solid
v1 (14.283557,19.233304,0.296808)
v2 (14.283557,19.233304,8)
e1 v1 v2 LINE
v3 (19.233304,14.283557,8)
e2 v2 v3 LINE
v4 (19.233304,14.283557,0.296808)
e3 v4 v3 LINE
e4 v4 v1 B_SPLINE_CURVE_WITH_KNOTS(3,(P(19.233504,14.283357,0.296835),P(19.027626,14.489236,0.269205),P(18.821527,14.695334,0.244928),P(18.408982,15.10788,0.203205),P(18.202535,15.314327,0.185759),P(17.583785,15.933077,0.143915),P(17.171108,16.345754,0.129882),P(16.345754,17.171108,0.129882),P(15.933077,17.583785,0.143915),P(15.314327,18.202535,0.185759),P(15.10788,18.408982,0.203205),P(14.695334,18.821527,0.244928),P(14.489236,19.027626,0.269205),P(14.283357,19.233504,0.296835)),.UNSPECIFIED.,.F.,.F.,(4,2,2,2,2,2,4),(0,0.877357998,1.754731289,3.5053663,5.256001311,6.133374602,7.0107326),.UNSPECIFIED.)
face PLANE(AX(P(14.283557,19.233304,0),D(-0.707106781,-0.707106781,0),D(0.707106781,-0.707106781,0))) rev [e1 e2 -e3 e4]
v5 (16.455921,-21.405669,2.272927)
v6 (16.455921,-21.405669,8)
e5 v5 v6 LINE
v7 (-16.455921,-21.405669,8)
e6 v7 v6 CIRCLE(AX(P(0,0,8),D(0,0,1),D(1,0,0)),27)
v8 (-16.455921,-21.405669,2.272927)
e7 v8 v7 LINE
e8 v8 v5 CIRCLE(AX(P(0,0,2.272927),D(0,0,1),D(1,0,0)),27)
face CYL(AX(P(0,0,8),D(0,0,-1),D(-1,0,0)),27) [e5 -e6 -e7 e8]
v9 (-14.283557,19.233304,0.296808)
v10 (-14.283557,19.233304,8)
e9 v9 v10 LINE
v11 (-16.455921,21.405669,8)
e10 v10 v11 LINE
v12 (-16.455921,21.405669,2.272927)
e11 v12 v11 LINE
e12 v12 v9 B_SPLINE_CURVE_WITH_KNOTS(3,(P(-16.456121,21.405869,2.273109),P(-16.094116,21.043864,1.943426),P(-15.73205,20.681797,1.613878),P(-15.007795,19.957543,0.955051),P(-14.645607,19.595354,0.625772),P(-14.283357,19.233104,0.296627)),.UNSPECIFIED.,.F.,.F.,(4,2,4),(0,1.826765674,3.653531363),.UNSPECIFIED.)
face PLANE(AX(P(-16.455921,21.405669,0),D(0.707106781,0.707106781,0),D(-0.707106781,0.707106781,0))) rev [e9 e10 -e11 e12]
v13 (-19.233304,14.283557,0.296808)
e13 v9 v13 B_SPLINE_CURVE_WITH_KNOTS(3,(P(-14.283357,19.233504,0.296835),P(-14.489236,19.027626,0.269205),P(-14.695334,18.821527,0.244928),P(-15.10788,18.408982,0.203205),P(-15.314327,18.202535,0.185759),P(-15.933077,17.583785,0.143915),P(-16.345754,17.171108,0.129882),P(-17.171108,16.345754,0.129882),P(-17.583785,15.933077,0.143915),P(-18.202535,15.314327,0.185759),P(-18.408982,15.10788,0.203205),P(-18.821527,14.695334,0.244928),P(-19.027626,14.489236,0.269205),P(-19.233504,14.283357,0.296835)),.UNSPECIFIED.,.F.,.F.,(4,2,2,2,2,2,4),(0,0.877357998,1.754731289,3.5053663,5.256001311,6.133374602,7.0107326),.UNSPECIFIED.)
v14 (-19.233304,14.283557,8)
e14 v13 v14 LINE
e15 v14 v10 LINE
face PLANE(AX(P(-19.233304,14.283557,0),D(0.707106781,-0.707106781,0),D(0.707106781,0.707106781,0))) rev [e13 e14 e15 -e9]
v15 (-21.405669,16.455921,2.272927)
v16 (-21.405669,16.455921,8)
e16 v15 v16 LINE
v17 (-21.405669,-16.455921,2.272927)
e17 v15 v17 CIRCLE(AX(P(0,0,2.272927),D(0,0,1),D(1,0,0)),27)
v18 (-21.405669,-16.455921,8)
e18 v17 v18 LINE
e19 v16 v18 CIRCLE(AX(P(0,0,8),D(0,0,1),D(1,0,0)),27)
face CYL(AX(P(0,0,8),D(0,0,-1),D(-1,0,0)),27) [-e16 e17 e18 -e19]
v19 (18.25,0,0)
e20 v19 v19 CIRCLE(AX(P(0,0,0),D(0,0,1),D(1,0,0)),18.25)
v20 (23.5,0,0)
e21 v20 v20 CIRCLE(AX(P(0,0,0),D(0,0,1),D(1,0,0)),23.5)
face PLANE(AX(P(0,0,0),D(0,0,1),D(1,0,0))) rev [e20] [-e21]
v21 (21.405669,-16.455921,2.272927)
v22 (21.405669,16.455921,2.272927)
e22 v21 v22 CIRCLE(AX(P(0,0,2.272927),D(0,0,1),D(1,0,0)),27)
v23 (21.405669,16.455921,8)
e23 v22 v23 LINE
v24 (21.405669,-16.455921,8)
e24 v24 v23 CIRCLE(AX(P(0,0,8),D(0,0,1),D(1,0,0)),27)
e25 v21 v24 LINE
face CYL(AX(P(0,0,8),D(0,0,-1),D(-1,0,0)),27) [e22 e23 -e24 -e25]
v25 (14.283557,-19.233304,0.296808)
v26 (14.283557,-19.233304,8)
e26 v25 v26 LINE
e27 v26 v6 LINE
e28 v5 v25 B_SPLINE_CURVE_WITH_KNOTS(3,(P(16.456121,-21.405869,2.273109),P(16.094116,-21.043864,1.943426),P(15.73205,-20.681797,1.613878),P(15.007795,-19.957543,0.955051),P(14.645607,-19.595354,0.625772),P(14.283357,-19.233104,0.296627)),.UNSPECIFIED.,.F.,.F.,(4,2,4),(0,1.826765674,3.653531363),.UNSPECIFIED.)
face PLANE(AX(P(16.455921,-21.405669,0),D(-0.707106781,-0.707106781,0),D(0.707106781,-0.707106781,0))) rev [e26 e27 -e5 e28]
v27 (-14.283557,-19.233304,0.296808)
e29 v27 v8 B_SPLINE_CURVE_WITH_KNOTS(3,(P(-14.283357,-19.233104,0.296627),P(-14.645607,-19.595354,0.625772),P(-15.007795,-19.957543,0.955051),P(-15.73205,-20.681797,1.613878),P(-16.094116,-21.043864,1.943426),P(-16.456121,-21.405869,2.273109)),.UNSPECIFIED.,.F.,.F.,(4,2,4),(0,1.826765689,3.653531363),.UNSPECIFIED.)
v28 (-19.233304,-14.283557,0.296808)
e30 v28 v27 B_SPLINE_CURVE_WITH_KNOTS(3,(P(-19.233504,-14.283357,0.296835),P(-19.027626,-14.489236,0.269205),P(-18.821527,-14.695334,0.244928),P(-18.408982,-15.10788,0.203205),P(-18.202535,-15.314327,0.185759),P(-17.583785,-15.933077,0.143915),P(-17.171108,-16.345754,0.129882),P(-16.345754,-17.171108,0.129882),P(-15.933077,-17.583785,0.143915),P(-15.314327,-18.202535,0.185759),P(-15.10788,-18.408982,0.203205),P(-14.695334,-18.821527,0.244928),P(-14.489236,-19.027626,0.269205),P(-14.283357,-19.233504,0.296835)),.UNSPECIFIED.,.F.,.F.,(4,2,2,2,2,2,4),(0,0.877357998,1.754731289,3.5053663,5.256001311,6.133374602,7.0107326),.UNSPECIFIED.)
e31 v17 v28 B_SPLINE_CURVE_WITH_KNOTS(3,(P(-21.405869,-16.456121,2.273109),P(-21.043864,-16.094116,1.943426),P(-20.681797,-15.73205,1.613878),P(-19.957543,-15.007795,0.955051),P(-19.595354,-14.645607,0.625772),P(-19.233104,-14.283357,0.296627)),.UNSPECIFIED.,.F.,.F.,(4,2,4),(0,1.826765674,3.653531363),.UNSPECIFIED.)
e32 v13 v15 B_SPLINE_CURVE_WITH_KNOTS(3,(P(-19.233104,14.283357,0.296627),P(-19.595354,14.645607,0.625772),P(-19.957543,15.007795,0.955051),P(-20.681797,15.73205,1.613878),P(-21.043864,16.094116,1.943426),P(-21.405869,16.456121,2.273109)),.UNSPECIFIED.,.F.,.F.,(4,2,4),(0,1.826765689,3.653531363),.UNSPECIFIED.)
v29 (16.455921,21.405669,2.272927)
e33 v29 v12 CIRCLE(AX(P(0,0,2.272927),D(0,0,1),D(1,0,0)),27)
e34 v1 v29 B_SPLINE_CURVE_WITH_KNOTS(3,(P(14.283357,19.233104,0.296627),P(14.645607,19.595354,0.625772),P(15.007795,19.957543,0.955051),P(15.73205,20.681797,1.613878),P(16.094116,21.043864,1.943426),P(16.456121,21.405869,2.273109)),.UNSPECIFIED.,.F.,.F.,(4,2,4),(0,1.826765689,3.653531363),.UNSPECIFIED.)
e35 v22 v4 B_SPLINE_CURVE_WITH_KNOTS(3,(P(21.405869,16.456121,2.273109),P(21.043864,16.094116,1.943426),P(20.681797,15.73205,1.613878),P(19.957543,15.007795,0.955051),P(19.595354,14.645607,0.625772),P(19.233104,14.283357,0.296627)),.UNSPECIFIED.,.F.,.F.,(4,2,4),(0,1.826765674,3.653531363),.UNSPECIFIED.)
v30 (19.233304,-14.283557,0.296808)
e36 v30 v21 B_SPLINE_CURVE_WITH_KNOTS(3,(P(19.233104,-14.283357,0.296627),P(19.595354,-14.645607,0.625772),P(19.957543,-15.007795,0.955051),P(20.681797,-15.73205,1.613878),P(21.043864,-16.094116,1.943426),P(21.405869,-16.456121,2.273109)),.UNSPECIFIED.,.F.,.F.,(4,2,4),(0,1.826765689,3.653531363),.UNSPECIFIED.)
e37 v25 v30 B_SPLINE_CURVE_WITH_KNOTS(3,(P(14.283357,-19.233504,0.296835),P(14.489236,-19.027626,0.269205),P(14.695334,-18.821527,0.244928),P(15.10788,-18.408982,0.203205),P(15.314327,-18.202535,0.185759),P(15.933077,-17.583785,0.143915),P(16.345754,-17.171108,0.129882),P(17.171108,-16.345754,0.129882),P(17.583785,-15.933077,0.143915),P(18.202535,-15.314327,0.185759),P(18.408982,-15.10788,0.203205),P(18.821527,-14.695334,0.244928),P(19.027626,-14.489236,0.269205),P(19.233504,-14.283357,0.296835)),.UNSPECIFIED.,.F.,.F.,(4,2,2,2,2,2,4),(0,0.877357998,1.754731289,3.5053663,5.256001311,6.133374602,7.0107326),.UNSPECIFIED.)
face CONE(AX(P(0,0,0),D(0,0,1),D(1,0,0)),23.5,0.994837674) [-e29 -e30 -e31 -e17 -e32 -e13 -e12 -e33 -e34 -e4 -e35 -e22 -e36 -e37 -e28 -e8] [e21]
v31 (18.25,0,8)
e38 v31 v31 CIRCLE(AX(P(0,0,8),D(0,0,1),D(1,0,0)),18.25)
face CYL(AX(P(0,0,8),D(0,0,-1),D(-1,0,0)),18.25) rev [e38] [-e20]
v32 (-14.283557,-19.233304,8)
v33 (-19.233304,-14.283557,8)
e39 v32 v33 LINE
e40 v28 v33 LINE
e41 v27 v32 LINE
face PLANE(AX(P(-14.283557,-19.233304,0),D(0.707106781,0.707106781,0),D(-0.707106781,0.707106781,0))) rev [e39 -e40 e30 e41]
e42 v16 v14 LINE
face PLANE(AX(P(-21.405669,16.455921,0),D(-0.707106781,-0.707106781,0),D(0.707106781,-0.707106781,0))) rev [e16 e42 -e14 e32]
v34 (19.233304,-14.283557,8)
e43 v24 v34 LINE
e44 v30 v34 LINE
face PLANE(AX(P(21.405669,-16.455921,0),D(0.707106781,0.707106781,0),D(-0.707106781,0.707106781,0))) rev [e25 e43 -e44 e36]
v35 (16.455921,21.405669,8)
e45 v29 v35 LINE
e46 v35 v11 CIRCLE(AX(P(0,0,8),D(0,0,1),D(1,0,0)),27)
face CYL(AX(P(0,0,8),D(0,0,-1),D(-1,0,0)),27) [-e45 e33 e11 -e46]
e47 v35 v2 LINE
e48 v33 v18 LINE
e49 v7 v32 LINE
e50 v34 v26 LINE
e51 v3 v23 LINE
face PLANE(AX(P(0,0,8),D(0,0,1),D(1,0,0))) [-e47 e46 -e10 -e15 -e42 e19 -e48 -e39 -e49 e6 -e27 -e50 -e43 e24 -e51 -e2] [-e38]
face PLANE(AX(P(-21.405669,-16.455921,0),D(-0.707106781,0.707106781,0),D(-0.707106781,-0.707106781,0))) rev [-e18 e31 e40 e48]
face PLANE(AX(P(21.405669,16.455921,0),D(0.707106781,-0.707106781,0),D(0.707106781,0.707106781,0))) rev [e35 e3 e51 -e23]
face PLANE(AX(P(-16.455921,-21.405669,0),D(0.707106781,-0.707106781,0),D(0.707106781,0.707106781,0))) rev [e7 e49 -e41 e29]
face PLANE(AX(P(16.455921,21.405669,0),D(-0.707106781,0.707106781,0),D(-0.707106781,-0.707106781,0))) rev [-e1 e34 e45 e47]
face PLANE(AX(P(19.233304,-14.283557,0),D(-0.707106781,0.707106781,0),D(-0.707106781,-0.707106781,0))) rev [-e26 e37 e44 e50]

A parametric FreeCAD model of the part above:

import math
import FreeCAD as App
import Part
import Sketcher

V = App.Vector
Q = App.Units.Quantity


def add_polygon(sketch, points):
    """Adds a closed chain of lines whose ends are joined by coincident constraints."""
    first, n = sketch.GeometryCount, len(points)
    for a, b in zip(points, points[1:] + points[:1]):
        sketch.addGeometry(Part.LineSegment(App.Vector(*a, 0), App.Vector(*b, 0)), False)
    for i in range(n):
        sketch.addConstraint(Sketcher.Constraint("Coincident", first + i, 2, first + (i + 1) % n, 1))

doc = App.newDocument("Part")
body = doc.addObject("PartDesign::Body", "Body")

sketch1 = doc.addObject("Sketcher::SketchObject", "Sketch")
body.addObject(sketch1)
sketch1.AttachmentSupport = (doc.XY_Plane, [""])
sketch1.MapMode = "FlatFace"
sketch1.addGeometry(Part.Circle(V(0, 0, 0), V(0, 0, 1), 27), False)
sketch1.addGeometry(Part.Circle(V(0, 0, 0), V(0, 0, 1), 18), False)
sketch1.addConstraint(Sketcher.Constraint("Coincident", 0, 3, -1, 1))
sketch1.addConstraint(Sketcher.Constraint("Coincident", 1, 3, -1, 1))
sketch1.addConstraint(Sketcher.Constraint("Diameter", 0, Q("54 mm")))
sketch1.addConstraint(Sketcher.Constraint("Diameter", 1, Q("36.5 mm")))
pad1 = doc.addObject("PartDesign::Pad", "Pad")
body.addObject(pad1)
pad1.Profile = sketch1
pad1.Length = 8

sketch2 = doc.addObject("Sketcher::SketchObject", "Sketch001")
body.addObject(sketch2)
sketch2.AttachmentSupport = (doc.XY_Plane, [""])
sketch2.MapMode = "FlatFace"
sketch2.AttachmentOffset = App.Placement(V(0, 0, 8), App.Rotation())
sketch2.addGeometry(Part.LineSegment(V(16.5, 21.4, 0), V(14.3, 19.2, 0)), False)
sketch2.addGeometry(Part.LineSegment(V(14.3, 19.2, 0), V(19.2, 14.3, 0)), False)
sketch2.addGeometry(Part.LineSegment(V(19.2, 14.3, 0), V(21.4, 16.5, 0)), False)
sketch2.addGeometry(Part.ArcOfCircle(Part.Circle(V(0, 0, 0), V(0, 0, 1), 27), math.radians(37.55), math.radians(52.45)), False)
sketch2.addConstraint(Sketcher.Constraint("Coincident", 0, 2, 1, 1))
sketch2.addConstraint(Sketcher.Constraint("Coincident", 1, 2, 2, 1))
sketch2.addConstraint(Sketcher.Constraint("Coincident", 2, 2, 3, 1))
sketch2.addConstraint(Sketcher.Constraint("Coincident", 3, 2, 0, 1))
sketch2.addConstraint(Sketcher.Constraint("Coincident", 3, 3, -1, 1))
sketch2.addConstraint(Sketcher.Constraint("Perpendicular", 0, 1))
sketch2.addConstraint(Sketcher.Constraint("Perpendicular", 1, 2))
sketch2.addConstraint(Sketcher.Constraint("Equal", 0, 2))
sketch2.addConstraint(Sketcher.Constraint("Radius", 3, Q("27 mm")))
sketch2.addConstraint(Sketcher.Constraint("Angle", 0, Q("-135 deg")))
sketch2.addConstraint(Sketcher.Constraint("Distance", 1, Q("7 mm")))
sketch2.addConstraint(Sketcher.Constraint("DistanceX", 0, 2, 2, 2, Q("7.122112 mm")))
pocket1 = doc.addObject("PartDesign::Pocket", "Pocket")
body.addObject(pocket1)
pocket1.Profile = sketch2
pocket1.Type = "ThroughAll"
doc.recompute()

polarpattern = doc.addObject("PartDesign::PolarPattern", "PolarPattern")
body.addObject(polarpattern)
polarpattern.Originals = [pocket1]
polarpattern.Axis = (doc.Z_Axis, [""])
polarpattern.Angle = 360
polarpattern.Occurrences = 4
body.Tip = polarpattern

sketch3 = doc.addObject("Sketcher::SketchObject", "Sketch002")
body.addObject(sketch3)
sketch3.AttachmentSupport = (doc.XZ_Plane, [""])
sketch3.MapMode = "FlatFace"
add_polygon(sketch3, [(27, 0), (23.5, 0), (27, 2.3)])
sketch3.addConstraint(Sketcher.Constraint("Horizontal", 0))
sketch3.addConstraint(Sketcher.Constraint("Vertical", 2))
sketch3.addConstraint(Sketcher.Constraint("PointOnObject", 0, 2, -1))
sketch3.addConstraint(Sketcher.Constraint("Angle", 1, Q("33 deg")))
sketch3.addConstraint(Sketcher.Constraint("DistanceX", 0, 2, 0, 1, Q("3.5 mm")))
sketch3.addConstraint(Sketcher.Constraint("DistanceX", -1, 1, 1, 2, Q("27 mm")))
groove = doc.addObject("PartDesign::Groove", "Groove")
body.addObject(groove)
groove.Profile = sketch3
groove.ReferenceAxis = (sketch3, ["V_Axis"])
groove.Angle = 360

doc.recompute()
